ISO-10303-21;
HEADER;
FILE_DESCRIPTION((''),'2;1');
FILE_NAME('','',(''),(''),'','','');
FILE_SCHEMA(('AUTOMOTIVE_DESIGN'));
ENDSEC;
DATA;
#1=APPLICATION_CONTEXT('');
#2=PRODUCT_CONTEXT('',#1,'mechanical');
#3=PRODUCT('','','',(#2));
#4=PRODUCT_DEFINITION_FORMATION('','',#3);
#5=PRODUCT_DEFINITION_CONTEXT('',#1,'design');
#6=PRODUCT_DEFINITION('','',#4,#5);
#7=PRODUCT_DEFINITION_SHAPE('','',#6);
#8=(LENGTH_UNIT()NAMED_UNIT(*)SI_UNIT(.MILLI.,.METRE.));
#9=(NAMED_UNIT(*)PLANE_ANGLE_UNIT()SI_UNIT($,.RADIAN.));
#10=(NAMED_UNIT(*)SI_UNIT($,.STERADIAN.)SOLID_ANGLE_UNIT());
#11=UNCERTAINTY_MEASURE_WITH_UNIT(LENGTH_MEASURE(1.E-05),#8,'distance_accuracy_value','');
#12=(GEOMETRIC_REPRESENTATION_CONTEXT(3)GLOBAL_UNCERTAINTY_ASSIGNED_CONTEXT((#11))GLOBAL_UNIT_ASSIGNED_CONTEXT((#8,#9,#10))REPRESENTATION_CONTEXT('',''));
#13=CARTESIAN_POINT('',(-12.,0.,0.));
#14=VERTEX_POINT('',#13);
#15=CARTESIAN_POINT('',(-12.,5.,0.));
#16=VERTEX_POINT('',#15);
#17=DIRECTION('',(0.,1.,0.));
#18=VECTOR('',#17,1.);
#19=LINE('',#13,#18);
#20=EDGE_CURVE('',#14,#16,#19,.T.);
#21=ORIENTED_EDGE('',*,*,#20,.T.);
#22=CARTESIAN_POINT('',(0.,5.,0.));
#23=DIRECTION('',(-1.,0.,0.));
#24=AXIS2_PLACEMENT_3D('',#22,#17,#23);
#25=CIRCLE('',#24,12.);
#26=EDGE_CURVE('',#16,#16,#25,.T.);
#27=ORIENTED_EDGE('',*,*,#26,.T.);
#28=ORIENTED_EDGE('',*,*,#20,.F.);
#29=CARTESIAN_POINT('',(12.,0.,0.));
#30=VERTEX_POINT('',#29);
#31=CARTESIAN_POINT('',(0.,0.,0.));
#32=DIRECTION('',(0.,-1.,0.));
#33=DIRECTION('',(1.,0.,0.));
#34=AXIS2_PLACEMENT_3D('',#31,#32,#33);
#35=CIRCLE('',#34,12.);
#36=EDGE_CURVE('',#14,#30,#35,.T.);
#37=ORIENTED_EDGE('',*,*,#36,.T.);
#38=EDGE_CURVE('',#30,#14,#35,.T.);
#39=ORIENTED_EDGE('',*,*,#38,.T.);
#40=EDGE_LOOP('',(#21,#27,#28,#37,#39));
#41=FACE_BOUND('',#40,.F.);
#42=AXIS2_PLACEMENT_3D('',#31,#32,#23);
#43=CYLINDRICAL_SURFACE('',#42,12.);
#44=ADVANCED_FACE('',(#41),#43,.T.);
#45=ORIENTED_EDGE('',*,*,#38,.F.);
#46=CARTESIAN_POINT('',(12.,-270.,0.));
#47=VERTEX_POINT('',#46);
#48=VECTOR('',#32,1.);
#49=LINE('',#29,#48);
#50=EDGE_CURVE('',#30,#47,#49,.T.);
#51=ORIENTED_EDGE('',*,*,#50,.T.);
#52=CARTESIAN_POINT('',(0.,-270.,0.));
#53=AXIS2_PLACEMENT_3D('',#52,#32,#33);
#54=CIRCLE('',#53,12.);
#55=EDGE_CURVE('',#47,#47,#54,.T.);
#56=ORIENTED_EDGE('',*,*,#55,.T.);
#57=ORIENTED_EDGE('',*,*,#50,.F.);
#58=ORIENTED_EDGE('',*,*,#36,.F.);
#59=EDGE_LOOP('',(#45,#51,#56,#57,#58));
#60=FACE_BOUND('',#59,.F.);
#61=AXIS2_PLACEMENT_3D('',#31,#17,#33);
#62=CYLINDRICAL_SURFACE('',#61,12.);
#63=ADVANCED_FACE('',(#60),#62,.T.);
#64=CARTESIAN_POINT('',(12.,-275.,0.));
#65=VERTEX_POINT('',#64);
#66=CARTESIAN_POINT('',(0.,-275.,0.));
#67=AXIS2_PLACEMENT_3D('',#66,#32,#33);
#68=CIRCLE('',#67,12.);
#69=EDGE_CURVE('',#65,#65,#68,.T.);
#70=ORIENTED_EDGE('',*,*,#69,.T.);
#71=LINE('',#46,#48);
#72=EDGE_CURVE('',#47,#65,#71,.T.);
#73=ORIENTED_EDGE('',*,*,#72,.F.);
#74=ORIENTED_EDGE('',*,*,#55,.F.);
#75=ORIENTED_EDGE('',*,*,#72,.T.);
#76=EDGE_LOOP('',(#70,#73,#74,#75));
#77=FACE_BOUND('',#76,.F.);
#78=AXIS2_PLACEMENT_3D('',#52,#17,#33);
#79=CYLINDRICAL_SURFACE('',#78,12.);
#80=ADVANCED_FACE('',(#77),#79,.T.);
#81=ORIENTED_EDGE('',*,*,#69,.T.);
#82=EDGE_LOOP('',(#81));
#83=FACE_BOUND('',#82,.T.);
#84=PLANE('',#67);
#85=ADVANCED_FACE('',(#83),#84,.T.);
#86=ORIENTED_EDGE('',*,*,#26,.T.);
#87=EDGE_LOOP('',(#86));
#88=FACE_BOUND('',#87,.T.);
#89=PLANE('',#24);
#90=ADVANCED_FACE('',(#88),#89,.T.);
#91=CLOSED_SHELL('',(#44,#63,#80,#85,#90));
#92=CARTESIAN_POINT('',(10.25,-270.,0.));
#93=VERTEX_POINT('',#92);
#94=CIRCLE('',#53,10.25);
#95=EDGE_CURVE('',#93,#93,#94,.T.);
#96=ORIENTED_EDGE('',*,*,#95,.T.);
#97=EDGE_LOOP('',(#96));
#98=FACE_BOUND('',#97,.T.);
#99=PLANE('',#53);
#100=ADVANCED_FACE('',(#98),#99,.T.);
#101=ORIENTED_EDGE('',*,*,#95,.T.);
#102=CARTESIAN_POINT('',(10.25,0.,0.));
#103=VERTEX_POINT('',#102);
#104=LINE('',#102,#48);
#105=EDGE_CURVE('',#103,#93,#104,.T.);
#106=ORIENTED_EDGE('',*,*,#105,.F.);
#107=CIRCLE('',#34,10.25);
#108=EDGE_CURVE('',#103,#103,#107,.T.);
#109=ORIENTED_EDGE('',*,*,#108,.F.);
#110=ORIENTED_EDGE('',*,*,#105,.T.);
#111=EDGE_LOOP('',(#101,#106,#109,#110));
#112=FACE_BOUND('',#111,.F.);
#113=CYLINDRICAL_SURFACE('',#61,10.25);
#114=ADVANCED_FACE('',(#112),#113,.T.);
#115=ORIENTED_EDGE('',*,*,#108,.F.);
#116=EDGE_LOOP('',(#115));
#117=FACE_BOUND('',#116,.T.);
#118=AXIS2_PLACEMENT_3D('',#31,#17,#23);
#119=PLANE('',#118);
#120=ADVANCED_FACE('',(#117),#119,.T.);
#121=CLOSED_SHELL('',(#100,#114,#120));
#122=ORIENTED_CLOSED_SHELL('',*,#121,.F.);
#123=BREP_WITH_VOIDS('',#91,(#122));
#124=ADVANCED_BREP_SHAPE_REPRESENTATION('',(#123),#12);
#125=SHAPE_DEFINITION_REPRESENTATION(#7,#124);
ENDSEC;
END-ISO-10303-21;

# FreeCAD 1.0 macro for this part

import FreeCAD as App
import Part
import Sketcher

V = App.Vector

doc = App.newDocument("Part")
body = doc.addObject("PartDesign::Body", "Body")

# Sketch on XZ plane
sketch1 = body.newObject("Sketcher::SketchObject", "Sketch")
sketch1.AttachmentSupport = (doc.getObject("XZ_Plane"), [""])
sketch1.MapMode = "FlatFace"
sketch1.addGeometry(Part.Circle(V(0, 0, 0), V(0, 0, 1), 12), False)
sketch1.addGeometry(Part.Circle(V(0, 0, 0), V(0, 0, 1), 10), False)
sketch1.addConstraint(Sketcher.Constraint("Coincident", 0, 3, -1, 1))
sketch1.addConstraint(Sketcher.Constraint("Coincident", 1, 3, -1, 1))
sketch1.addConstraint(Sketcher.Constraint("Diameter", 0, 24.0))
sketch1.addConstraint(Sketcher.Constraint("Diameter", 1, 20.5))
pad1 = body.newObject("PartDesign::Pad", "Pad")
pad1.Profile = sketch1
pad1.Length = 270

# Sketch on XZ plane
sketch2 = body.newObject("Sketcher::SketchObject", "Sketch001")
sketch2.AttachmentSupport = (doc.getObject("XZ_Plane"), [""])
sketch2.MapMode = "FlatFace"
sketch2.addGeometry(Part.Circle(V(0, 0, 0), V(0, 0, 1), 12), False)
sketch2.addConstraint(Sketcher.Constraint("Coincident", 0, 3, -1, 1))
sketch2.addConstraint(Sketcher.Constraint("Diameter", 0, 24.0))
pad2 = body.newObject("PartDesign::Pad", "Pad001")
pad2.Profile = sketch2
pad2.Length = 5
pad2.Reversed = True

# Sketch on XZ plane
sketch3 = body.newObject("Sketcher::SketchObject", "Sketch002")
sketch3.AttachmentSupport = (doc.getObject("XZ_Plane"), [""])
sketch3.MapMode = "FlatFace"
sketch3.AttachmentOffset = App.Placement(V(0, 0, 270), App.Rotation())
sketch3.addGeometry(Part.Circle(V(0, 0, 0), V(0, 0, 1), 12), False)
sketch3.addConstraint(Sketcher.Constraint("Coincident", 0, 3, -1, 1))
sketch3.addConstraint(Sketcher.Constraint("Diameter", 0, 24.0))
pad3 = body.newObject("PartDesign::Pad", "Pad002")
pad3.Profile = sketch3
pad3.Length = 5

doc.recompute()
